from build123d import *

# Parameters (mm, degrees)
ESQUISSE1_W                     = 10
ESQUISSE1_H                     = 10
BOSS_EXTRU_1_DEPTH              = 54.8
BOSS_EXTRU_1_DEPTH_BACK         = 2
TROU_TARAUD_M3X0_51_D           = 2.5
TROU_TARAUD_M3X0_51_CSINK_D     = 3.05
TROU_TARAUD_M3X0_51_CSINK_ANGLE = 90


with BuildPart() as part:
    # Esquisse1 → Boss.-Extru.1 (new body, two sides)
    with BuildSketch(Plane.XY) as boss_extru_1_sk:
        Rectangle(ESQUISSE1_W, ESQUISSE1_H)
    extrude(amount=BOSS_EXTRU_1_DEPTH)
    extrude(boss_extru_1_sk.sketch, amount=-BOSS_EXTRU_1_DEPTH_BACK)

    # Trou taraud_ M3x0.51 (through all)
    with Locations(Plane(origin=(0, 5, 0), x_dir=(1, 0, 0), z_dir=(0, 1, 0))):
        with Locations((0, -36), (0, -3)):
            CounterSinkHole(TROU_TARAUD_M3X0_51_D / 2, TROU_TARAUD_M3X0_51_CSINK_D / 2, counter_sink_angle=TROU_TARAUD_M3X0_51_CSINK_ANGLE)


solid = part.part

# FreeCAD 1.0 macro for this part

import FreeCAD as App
import Part
import Sketcher

V = App.Vector
Q = App.Units.Quantity

doc = App.newDocument("Part")
body = doc.addObject("PartDesign::Body", "Body")

# Sketch on XY plane
sketch1 = body.newObject("Sketcher::SketchObject", "Sketch")
sketch1.AttachmentSupport = (doc.getObject("XY_Plane"), [""])
sketch1.MapMode = "FlatFace"
sketch1.addGeometry([
    Part.LineSegment(V(-5, 5, 0), V(-5, -5, 0)),
    Part.LineSegment(V(-5, -5, 0), V(5, -5, 0)),
    Part.LineSegment(V(5, -5, 0), V(5, 5, 0)),
    Part.LineSegment(V(5, 5, 0), V(-5, 5, 0)),
], False)
sketch1.addConstraint([
    Sketcher.Constraint("Coincident", 0, 2, 1, 1),
    Sketcher.Constraint("Coincident", 1, 2, 2, 1),
    Sketcher.Constraint("Coincident", 2, 2, 3, 1),
    Sketcher.Constraint("Coincident", 3, 2, 0, 1),
    Sketcher.Constraint("Vertical", 0),
    Sketcher.Constraint("Horizontal", 1),
    Sketcher.Constraint("Vertical", 2),
    Sketcher.Constraint("Horizontal", 3),
    Sketcher.Constraint("Symmetric", 0, 2, 2, 2, -1, 1),
    Sketcher.Constraint("Equal", 3, 0),
    Sketcher.Constraint("DistanceX", 1, 1, 1, 2, Q("10 mm")),
])
pad1 = body.newObject("PartDesign::Pad", "Pad")
pad1.Profile = sketch1
pad1.Type = "TwoLengths"
pad1.Length = 54.8
pad1.Length2 = 2

# Sketch on XZ plane
sketch2 = body.newObject("Sketcher::SketchObject", "Sketch001")
sketch2.AttachmentSupport = (doc.getObject("XZ_Plane"), [""])
sketch2.MapMode = "FlatFace"
sketch2.AttachmentOffset = App.Placement(V(0, 0, -5), App.Rotation())
sketch2.addGeometry([
    Part.Circle(V(0, 36, 0), V(0, 0, 1), 1.2),
    Part.Circle(V(0, 3, 0), V(0, 0, 1), 1.2),
], False)
sketch2.addConstraint([
    Sketcher.Constraint("Equal", 0, 1),
    Sketcher.Constraint("PointOnObject", 0, 3, -2),
    Sketcher.Constraint("PointOnObject", 1, 3, -2),
    Sketcher.Constraint("Diameter", 0, Q("2.5 mm")),
    Sketcher.Constraint("DistanceY", -1, 1, 0, 3, Q("36 mm")),
    Sketcher.Constraint("DistanceY", -1, 1, 1, 3, Q("3 mm")),
])
doc.recompute()
hole = body.newObject("PartDesign::Hole", "Hole")
hole.Profile = sketch2
hole.ThreadType = "None"
hole.Diameter = 2.5
hole.DepthType = "ThroughAll"
hole.HoleCutType = "Countersink"
hole.HoleCutDiameter = 3.05
hole.HoleCutCountersinkAngle = 90
hole.Reversed = True

doc.recompute()
